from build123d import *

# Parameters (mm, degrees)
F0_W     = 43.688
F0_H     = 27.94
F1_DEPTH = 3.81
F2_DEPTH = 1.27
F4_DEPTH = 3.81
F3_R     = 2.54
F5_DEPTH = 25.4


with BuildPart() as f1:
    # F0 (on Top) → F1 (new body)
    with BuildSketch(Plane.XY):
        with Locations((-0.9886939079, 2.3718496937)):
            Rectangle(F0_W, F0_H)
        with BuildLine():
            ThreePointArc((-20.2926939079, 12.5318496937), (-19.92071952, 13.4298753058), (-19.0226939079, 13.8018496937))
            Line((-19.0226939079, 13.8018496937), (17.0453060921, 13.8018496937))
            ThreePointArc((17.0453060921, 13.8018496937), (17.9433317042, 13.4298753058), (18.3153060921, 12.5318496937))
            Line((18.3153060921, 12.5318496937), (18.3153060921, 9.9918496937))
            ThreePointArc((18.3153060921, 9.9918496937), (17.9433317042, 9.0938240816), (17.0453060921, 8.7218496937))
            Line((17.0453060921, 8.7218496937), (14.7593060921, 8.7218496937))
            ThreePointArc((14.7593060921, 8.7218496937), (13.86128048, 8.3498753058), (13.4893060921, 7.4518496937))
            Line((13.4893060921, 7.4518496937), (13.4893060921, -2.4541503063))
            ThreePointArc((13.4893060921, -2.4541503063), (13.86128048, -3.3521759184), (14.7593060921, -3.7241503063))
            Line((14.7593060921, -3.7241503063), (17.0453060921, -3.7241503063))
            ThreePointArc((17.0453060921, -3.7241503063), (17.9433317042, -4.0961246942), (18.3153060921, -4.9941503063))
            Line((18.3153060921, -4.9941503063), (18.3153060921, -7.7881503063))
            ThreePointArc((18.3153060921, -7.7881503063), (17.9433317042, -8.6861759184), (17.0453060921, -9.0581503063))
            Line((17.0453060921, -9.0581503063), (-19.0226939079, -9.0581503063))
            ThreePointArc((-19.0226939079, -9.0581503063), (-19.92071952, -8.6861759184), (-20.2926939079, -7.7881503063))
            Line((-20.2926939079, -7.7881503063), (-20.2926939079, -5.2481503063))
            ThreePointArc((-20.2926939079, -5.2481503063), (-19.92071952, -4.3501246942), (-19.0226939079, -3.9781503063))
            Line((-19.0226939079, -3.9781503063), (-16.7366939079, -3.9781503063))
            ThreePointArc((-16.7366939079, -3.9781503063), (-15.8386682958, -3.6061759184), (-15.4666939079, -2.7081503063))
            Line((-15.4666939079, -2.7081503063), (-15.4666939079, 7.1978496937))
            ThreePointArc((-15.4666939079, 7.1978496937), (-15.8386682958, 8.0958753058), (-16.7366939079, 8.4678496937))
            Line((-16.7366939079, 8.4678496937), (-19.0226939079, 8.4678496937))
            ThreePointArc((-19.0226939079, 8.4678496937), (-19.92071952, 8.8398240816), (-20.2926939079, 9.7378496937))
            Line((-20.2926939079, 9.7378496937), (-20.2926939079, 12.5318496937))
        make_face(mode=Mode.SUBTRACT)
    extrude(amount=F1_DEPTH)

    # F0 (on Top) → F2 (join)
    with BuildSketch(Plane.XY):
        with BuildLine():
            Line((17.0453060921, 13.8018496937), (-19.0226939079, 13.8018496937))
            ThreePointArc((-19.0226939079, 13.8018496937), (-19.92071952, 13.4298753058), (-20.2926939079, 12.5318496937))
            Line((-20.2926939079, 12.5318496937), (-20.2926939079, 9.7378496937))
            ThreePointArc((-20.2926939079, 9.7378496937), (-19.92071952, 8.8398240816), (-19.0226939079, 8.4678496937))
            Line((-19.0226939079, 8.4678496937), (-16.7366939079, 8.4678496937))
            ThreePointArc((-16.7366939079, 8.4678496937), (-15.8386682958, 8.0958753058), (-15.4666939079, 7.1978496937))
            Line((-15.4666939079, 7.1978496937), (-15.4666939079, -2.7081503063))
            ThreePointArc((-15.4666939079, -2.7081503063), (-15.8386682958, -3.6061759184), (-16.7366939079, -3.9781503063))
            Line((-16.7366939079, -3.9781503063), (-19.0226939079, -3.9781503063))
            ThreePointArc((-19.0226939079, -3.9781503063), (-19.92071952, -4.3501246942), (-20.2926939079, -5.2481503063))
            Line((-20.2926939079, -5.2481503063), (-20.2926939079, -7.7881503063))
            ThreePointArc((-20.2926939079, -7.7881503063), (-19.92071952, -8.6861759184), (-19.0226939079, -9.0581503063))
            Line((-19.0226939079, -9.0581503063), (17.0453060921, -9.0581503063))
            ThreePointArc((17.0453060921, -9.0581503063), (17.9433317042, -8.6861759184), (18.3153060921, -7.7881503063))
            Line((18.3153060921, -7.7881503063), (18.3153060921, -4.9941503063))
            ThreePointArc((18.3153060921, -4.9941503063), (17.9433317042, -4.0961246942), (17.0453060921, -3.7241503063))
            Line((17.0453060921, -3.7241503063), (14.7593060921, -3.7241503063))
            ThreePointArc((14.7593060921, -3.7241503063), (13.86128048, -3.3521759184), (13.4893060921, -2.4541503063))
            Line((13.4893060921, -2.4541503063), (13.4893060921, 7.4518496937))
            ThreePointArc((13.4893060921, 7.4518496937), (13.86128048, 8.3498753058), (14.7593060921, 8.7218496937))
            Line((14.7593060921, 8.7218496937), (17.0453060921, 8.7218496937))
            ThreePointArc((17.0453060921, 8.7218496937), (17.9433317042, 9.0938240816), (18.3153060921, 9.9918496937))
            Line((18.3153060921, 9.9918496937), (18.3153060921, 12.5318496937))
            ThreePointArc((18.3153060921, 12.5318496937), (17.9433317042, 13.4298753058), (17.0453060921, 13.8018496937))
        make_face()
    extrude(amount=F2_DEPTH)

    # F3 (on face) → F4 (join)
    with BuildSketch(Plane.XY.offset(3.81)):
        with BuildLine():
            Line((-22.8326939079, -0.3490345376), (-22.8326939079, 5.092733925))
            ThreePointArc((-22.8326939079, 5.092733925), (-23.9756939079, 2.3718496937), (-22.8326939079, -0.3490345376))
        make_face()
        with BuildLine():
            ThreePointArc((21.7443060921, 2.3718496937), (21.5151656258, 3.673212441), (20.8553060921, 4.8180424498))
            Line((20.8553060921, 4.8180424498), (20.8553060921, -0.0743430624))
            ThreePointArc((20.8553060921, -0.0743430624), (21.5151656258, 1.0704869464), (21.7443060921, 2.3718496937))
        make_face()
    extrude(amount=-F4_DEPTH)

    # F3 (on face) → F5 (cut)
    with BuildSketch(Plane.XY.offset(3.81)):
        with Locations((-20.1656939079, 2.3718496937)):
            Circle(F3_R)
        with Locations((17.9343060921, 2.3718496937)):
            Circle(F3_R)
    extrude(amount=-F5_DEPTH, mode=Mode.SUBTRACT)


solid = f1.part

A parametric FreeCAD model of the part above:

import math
import FreeCAD as App
import Part
import Sketcher
Q = App.Units.Quantity

doc = App.newDocument("Part")
body = doc.addObject("PartDesign::Body", "Body")

# Sketch on XY plane
sketch1 = body.newObject("Sketcher::SketchObject", "Sketch")
sketch1.AttachmentSupport = (doc.getObject("XY_Plane"), [""])
sketch1.MapMode = "FlatFace"
sketch1.addGeometry([
    Part.LineSegment(App.Vector(-22.8, 16.3, 0), App.Vector(-22.8, -11.6, 0)),  # 0
    Part.LineSegment(App.Vector(-22.8, -11.6, 0), App.Vector(20.9, -11.6, 0)),  # 1
    Part.LineSegment(App.Vector(20.9, -11.6, 0), App.Vector(20.9, 16.3, 0)),  # 2
    Part.LineSegment(App.Vector(20.9, 16.3, 0), App.Vector(-22.8, 16.3, 0)),  # 3
    Part.LineSegment(App.Vector(-20.3, 9.7, 0), App.Vector(-20.3, 12.5, 0)),  # 4
    Part.ArcOfCircle(Part.Circle(App.Vector(-19, 12.5, 0), App.Vector(0, 0, 1), 1.3), math.radians(90), math.radians(180)),  # 5
    Part.LineSegment(App.Vector(-19, 13.8, 0), App.Vector(17, 13.8, 0)),  # 6
    Part.ArcOfCircle(Part.Circle(App.Vector(17, 12.5, 0), App.Vector(0, 0, 1), 1.3), math.radians(0), math.radians(90)),  # 7
    Part.LineSegment(App.Vector(18.3, 12.5, 0), App.Vector(18.3, 10, 0)),  # 8
    Part.ArcOfCircle(Part.Circle(App.Vector(17, 10, 0), App.Vector(0, 0, 1), 1.3), math.radians(-90), math.radians(0)),  # 9
    Part.LineSegment(App.Vector(17, 8.7, 0), App.Vector(14.8, 8.7, 0)),  # 10
    Part.ArcOfCircle(Part.Circle(App.Vector(14.8, 7.5, 0), App.Vector(0, 0, 1), 1.3), math.radians(90), math.radians(180)),  # 11
    Part.LineSegment(App.Vector(13.5, 7.5, 0), App.Vector(13.5, -2.5, 0)),  # 12
    Part.ArcOfCircle(Part.Circle(App.Vector(14.8, -2.5, 0), App.Vector(0, 0, 1), 1.3), math.radians(180), math.radians(270)),  # 13
    Part.LineSegment(App.Vector(14.8, -3.7, 0), App.Vector(17, -3.7, 0)),  # 14
    Part.ArcOfCircle(Part.Circle(App.Vector(17, -5, 0), App.Vector(0, 0, 1), 1.3), math.radians(0), math.radians(90)),  # 15
    Part.LineSegment(App.Vector(18.3, -5, 0), App.Vector(18.3, -7.8, 0)),  # 16
    Part.ArcOfCircle(Part.Circle(App.Vector(17, -7.8, 0), App.Vector(0, 0, 1), 1.3), math.radians(-90), math.radians(0)),  # 17
    Part.LineSegment(App.Vector(17, -9.1, 0), App.Vector(-19, -9.1, 0)),  # 18
    Part.ArcOfCircle(Part.Circle(App.Vector(-19, -7.8, 0), App.Vector(0, 0, 1), 1.3), math.radians(180), math.radians(270)),  # 19
    Part.LineSegment(App.Vector(-20.3, -7.8, 0), App.Vector(-20.3, -5.2, 0)),  # 20
    Part.ArcOfCircle(Part.Circle(App.Vector(-19, -5.2, 0), App.Vector(0, 0, 1), 1.3), math.radians(90), math.radians(180)),  # 21
    Part.LineSegment(App.Vector(-19, -4, 0), App.Vector(-16.7, -4, 0)),  # 22
    Part.ArcOfCircle(Part.Circle(App.Vector(-16.7, -2.7, 0), App.Vector(0, 0, 1), 1.3), math.radians(-90), math.radians(0)),  # 23
    Part.LineSegment(App.Vector(-15.5, -2.7, 0), App.Vector(-15.5, 7.2, 0)),  # 24
    Part.ArcOfCircle(Part.Circle(App.Vector(-16.7, 7.2, 0), App.Vector(0, 0, 1), 1.3), math.radians(0), math.radians(90)),  # 25
    Part.LineSegment(App.Vector(-16.7, 8.5, 0), App.Vector(-19, 8.5, 0)),  # 26
    Part.ArcOfCircle(Part.Circle(App.Vector(-19, 9.7, 0), App.Vector(0, 0, 1), 1.3), math.radians(180), math.radians(270)),  # 27
], False)
sketch1.addConstraint([
    Sketcher.Constraint("Coincident", 0, 2, 1, 1),
    Sketcher.Constraint("Coincident", 1, 2, 2, 1),
    Sketcher.Constraint("Coincident", 2, 2, 3, 1),
    Sketcher.Constraint("Coincident", 3, 2, 0, 1),
    Sketcher.Constraint("Tangent", 4, 2, 5, 2),
    Sketcher.Constraint("Tangent", 5, 1, 6, 1),
    Sketcher.Constraint("Tangent", 6, 2, 7, 2),
    Sketcher.Constraint("Tangent", 7, 1, 8, 1),
    Sketcher.Constraint("Tangent", 8, 2, 9, 2),
    Sketcher.Constraint("Tangent", 9, 1, 10, 1),
    Sketcher.Constraint("Tangent", 10, 2, 11, 1),
    Sketcher.Constraint("Tangent", 11, 2, 12, 1),
    Sketcher.Constraint("Tangent", 12, 2, 13, 1),
    Sketcher.Constraint("Tangent", 13, 2, 14, 1),
    Sketcher.Constraint("Tangent", 14, 2, 15, 2),
    Sketcher.Constraint("Tangent", 15, 1, 16, 1),
    Sketcher.Constraint("Tangent", 16, 2, 17, 2),
    Sketcher.Constraint("Tangent", 17, 1, 18, 1),
    Sketcher.Constraint("Tangent", 18, 2, 19, 2),
    Sketcher.Constraint("Tangent", 19, 1, 20, 1),
    Sketcher.Constraint("Tangent", 20, 2, 21, 2),
    Sketcher.Constraint("Tangent", 21, 1, 22, 1),
    Sketcher.Constraint("Tangent", 22, 2, 23, 1),
    Sketcher.Constraint("Tangent", 23, 2, 24, 1),
    Sketcher.Constraint("Tangent", 24, 2, 25, 1),
    Sketcher.Constraint("Tangent", 25, 2, 26, 1),
    Sketcher.Constraint("Tangent", 26, 2, 27, 2),
    Sketcher.Constraint("Tangent", 27, 1, 4, 1),
    Sketcher.Constraint("Vertical", 0),
    Sketcher.Constraint("Horizontal", 1),
    Sketcher.Constraint("Vertical", 2),
    Sketcher.Constraint("Horizontal", 3),
    Sketcher.Constraint("Vertical", 4),
    Sketcher.Constraint("Horizontal", 6),
    Sketcher.Constraint("Vertical", 8),
    Sketcher.Constraint("Horizontal", 10),
    Sketcher.Constraint("Vertical", 12),
    Sketcher.Constraint("Horizontal", 14),
    Sketcher.Constraint("Vertical", 16),
    Sketcher.Constraint("Horizontal", 18),
    Sketcher.Constraint("Vertical", 20),
    Sketcher.Constraint("Horizontal", 22),
    Sketcher.Constraint("Vertical", 24),
    Sketcher.Constraint("Horizontal", 26),
    Sketcher.Constraint("Equal", 5, 7),
    Sketcher.Constraint("Equal", 7, 9),
    Sketcher.Constraint("Equal", 9, 11),
    Sketcher.Constraint("Equal", 11, 13),
    Sketcher.Constraint("Equal", 13, 15),
    Sketcher.Constraint("Equal", 15, 17),
    Sketcher.Constraint("Equal", 17, 19),
    Sketcher.Constraint("Equal", 19, 21),
    Sketcher.Constraint("Equal", 21, 23),
    Sketcher.Constraint("Equal", 23, 25),
    Sketcher.Constraint("Equal", 25, 27),
    Sketcher.Constraint("Vertical", 9, 3, 15, 3),
    Sketcher.Constraint("Vertical", 5, 3, 19, 3),
    Sketcher.Constraint("Equal", 14, 22),
    Sketcher.Constraint("Equal", 4, 16),
    Sketcher.Constraint("Equal", 8, 20),
    Sketcher.Constraint("Radius", 5, Q("0.05 in")),
    Sketcher.Constraint("DistanceY", 0, 2, 0, 1, Q("1.1 in")),
    Sketcher.Constraint("DistanceY", 8, 2, 8, 1, Q("0.1 in")),
    Sketcher.Constraint("DistanceX", 1, 1, 1, 2, Q("1.72 in")),
    Sketcher.Constraint("DistanceX", 6, 1, 6, 2, Q("1.42 in")),
    Sketcher.Constraint("DistanceX", 10, 2, 10, 1, Q("0.09 in")),
    Sketcher.Constraint("DistanceY", 4, 1, 4, 2, Q("0.11 in")),
    Sketcher.Constraint("DistanceY", 12, 2, 12, 1, Q("0.39 in")),
    Sketcher.Constraint("DistanceX", 3, 2, 4, 2, Q("0.1 in")),
    Sketcher.Constraint("DistanceY", 5, 1, 3, 2, Q("0.1 in")),
    Sketcher.Constraint("DistanceY", -1, 1, 5, 3, Q("12.53185 mm")),
    Sketcher.Constraint("DistanceX", 5, 3, -1, 1, Q("19.022694 mm")),
])
pad1 = body.newObject("PartDesign::Pad", "Pad")
pad1.Profile = sketch1
pad1.Length = Q("0.15 in")

# Sketch on XY plane
sketch2 = body.newObject("Sketcher::SketchObject", "Sketch001")
sketch2.AttachmentSupport = (doc.getObject("XY_Plane"), [""])
sketch2.MapMode = "FlatFace"
sketch2.addGeometry([
    Part.LineSegment(App.Vector(17, 13.8, 0), App.Vector(-19, 13.8, 0)),  # 0
    Part.ArcOfCircle(Part.Circle(App.Vector(-19, 12.5, 0), App.Vector(0, 0, 1), 1.3), math.radians(90), math.radians(180)),  # 1
    Part.LineSegment(App.Vector(-20.3, 12.5, 0), App.Vector(-20.3, 9.7, 0)),  # 2
    Part.ArcOfCircle(Part.Circle(App.Vector(-19, 9.7, 0), App.Vector(0, 0, 1), 1.3), math.radians(180), math.radians(270)),  # 3
    Part.LineSegment(App.Vector(-19, 8.5, 0), App.Vector(-16.7, 8.5, 0)),  # 4
    Part.ArcOfCircle(Part.Circle(App.Vector(-16.7, 7.2, 0), App.Vector(0, 0, 1), 1.3), math.radians(0), math.radians(90)),  # 5
    Part.LineSegment(App.Vector(-15.5, 7.2, 0), App.Vector(-15.5, -2.7, 0)),  # 6
    Part.ArcOfCircle(Part.Circle(App.Vector(-16.7, -2.7, 0), App.Vector(0, 0, 1), 1.3), math.radians(-90), math.radians(0)),  # 7
    Part.LineSegment(App.Vector(-16.7, -4, 0), App.Vector(-19, -4, 0)),  # 8
    Part.ArcOfCircle(Part.Circle(App.Vector(-19, -5.2, 0), App.Vector(0, 0, 1), 1.3), math.radians(90), math.radians(180)),  # 9
    Part.LineSegment(App.Vector(-20.3, -5.2, 0), App.Vector(-20.3, -7.8, 0)),  # 10
    Part.ArcOfCircle(Part.Circle(App.Vector(-19, -7.8, 0), App.Vector(0, 0, 1), 1.3), math.radians(180), math.radians(270)),  # 11
    Part.LineSegment(App.Vector(-19, -9.1, 0), App.Vector(17, -9.1, 0)),  # 12
    Part.ArcOfCircle(Part.Circle(App.Vector(17, -7.8, 0), App.Vector(0, 0, 1), 1.3), math.radians(-90), math.radians(0)),  # 13
    Part.LineSegment(App.Vector(18.3, -7.8, 0), App.Vector(18.3, -5, 0)),  # 14
    Part.ArcOfCircle(Part.Circle(App.Vector(17, -5, 0), App.Vector(0, 0, 1), 1.3), math.radians(0), math.radians(90)),  # 15
    Part.LineSegment(App.Vector(17, -3.7, 0), App.Vector(14.8, -3.7, 0)),  # 16
    Part.ArcOfCircle(Part.Circle(App.Vector(14.8, -2.5, 0), App.Vector(0, 0, 1), 1.3), math.radians(180), math.radians(270)),  # 17
    Part.LineSegment(App.Vector(13.5, -2.5, 0), App.Vector(13.5, 7.5, 0)),  # 18
    Part.ArcOfCircle(Part.Circle(App.Vector(14.8, 7.5, 0), App.Vector(0, 0, 1), 1.3), math.radians(90), math.radians(180)),  # 19
    Part.LineSegment(App.Vector(14.8, 8.7, 0), App.Vector(17, 8.7, 0)),  # 20
    Part.ArcOfCircle(Part.Circle(App.Vector(17, 10, 0), App.Vector(0, 0, 1), 1.3), math.radians(-90), math.radians(0)),  # 21
    Part.LineSegment(App.Vector(18.3, 10, 0), App.Vector(18.3, 12.5, 0)),  # 22
    Part.ArcOfCircle(Part.Circle(App.Vector(17, 12.5, 0), App.Vector(0, 0, 1), 1.3), math.radians(0), math.radians(90)),  # 23
], False)
sketch2.addConstraint([
    Sketcher.Constraint("Tangent", 0, 2, 1, 1),
    Sketcher.Constraint("Tangent", 1, 2, 2, 1),
    Sketcher.Constraint("Tangent", 2, 2, 3, 1),
    Sketcher.Constraint("Tangent", 3, 2, 4, 1),
    Sketcher.Constraint("Tangent", 4, 2, 5, 2),
    Sketcher.Constraint("Tangent", 5, 1, 6, 1),
    Sketcher.Constraint("Tangent", 6, 2, 7, 2),
    Sketcher.Constraint("Tangent", 7, 1, 8, 1),
    Sketcher.Constraint("Tangent", 8, 2, 9, 1),
    Sketcher.Constraint("Tangent", 9, 2, 10, 1),
    Sketcher.Constraint("Tangent", 10, 2, 11, 1),
    Sketcher.Constraint("Tangent", 11, 2, 12, 1),
    Sketcher.Constraint("Tangent", 12, 2, 13, 1),
    Sketcher.Constraint("Tangent", 13, 2, 14, 1),
    Sketcher.Constraint("Tangent", 14, 2, 15, 1),
    Sketcher.Constraint("Tangent", 15, 2, 16, 1),
    Sketcher.Constraint("Tangent", 16, 2, 17, 2),
    Sketcher.Constraint("Tangent", 17, 1, 18, 1),
    Sketcher.Constraint("Tangent", 18, 2, 19, 2),
    Sketcher.Constraint("Tangent", 19, 1, 20, 1),
    Sketcher.Constraint("Tangent", 20, 2, 21, 1),
    Sketcher.Constraint("Tangent", 21, 2, 22, 1),
    Sketcher.Constraint("Tangent", 22, 2, 23, 1),
    Sketcher.Constraint("Tangent", 23, 2, 0, 1),
    Sketcher.Constraint("Horizontal", 0),
    Sketcher.Constraint("Vertical", 2),
    Sketcher.Constraint("Horizontal", 4),
    Sketcher.Constraint("Vertical", 6),
    Sketcher.Constraint("Horizontal", 8),
    Sketcher.Constraint("Vertical", 10),
    Sketcher.Constraint("Horizontal", 12),
    Sketcher.Constraint("Vertical", 14),
    Sketcher.Constraint("Horizontal", 16),
    Sketcher.Constraint("Vertical", 18),
    Sketcher.Constraint("Horizontal", 20),
    Sketcher.Constraint("Vertical", 22),
    Sketcher.Constraint("Equal", 1, 3),
    Sketcher.Constraint("Equal", 3, 5),
    Sketcher.Constraint("Equal", 5, 7),
    Sketcher.Constraint("Equal", 7, 9),
    Sketcher.Constraint("Equal", 9, 11),
    Sketcher.Constraint("Equal", 11, 13),
    Sketcher.Constraint("Equal", 13, 15),
    Sketcher.Constraint("Equal", 15, 17),
    Sketcher.Constraint("Equal", 17, 19),
    Sketcher.Constraint("Equal", 19, 21),
    Sketcher.Constraint("Equal", 21, 23),
    Sketcher.Constraint("Vertical", 3, 3, 9, 3),
    Sketcher.Constraint("Vertical", 15, 3, 21, 3),
    Sketcher.Constraint("Equal", 8, 16),
    Sketcher.Constraint("Equal", 2, 14),
    Sketcher.Constraint("Equal", 6, 18),
    Sketcher.Constraint("Radius", 1, Q("0.05 in")),
    Sketcher.Constraint("DistanceY", 10, 2, 10, 1, Q("0.1 in")),
    Sketcher.Constraint("DistanceX", 0, 2, 0, 1, Q("1.42 in")),
    Sketcher.Constraint("DistanceX", 4, 1, 4, 2, Q("0.09 in")),
    Sketcher.Constraint("DistanceY", 2, 2, 2, 1, Q("0.11 in")),
    Sketcher.Constraint("DistanceY", 6, 2, 6, 1, Q("0.39 in")),
    Sketcher.Constraint("DistanceY", -1, 1, 1, 3, Q("12.53185 mm")),
    Sketcher.Constraint("DistanceX", 1, 3, -1, 1, Q("19.022694 mm")),
])
pad2 = body.newObject("PartDesign::Pad", "Pad001")
pad2.Profile = sketch2
pad2.Length = Q("0.05 in")

# Sketch on XY plane
sketch3 = body.newObject("Sketcher::SketchObject", "Sketch002")
sketch3.AttachmentSupport = (doc.getObject("XY_Plane"), [""])
sketch3.MapMode = "FlatFace"
sketch3.AttachmentOffset = App.Placement(App.Vector(0, 0, 0.15 * 25.4), App.Rotation())
sketch3.addGeometry([
    Part.LineSegment(App.Vector(-22.8, -0.3, 0), App.Vector(-22.8, 5.1, 0)),  # 0
    Part.ArcOfCircle(Part.Circle(App.Vector(-20.2, 2.4, 0), App.Vector(0, 0, 1), 3.8), math.radians(134), math.radians(226)),  # 1
    Part.ArcOfCircle(Part.Circle(App.Vector(17.9, 2.4, 0), App.Vector(0, 0, 1), 3.8), math.radians(0), math.radians(40)),  # 2
    Part.LineSegment(App.Vector(20.9, 4.8, 0), App.Vector(20.9, -0.1, 0)),  # 3
    Part.ArcOfCircle(Part.Circle(App.Vector(17.9, 2.4, 0), App.Vector(0, 0, 1), 3.8), math.radians(-40), math.radians(0)),  # 4
], False)
sketch3.addConstraint([
    Sketcher.Constraint("Coincident", 0, 1, 1, 2),
    Sketcher.Constraint("Coincident", 1, 1, 0, 2),
    Sketcher.Constraint("Coincident", 2, 2, 3, 1),
    Sketcher.Constraint("Coincident", 3, 2, 4, 1),
    Sketcher.Constraint("Tangent", 4, 2, 2, 1),
    Sketcher.Constraint("Vertical", 0),
    Sketcher.Constraint("Vertical", 3),
    Sketcher.Constraint("Equal", 1, 2),
    Sketcher.Constraint("Equal", 2, 4),
    Sketcher.Constraint("Horizontal", 1, 3, 2, 3),
    Sketcher.Constraint("Horizontal", 2, 3, 4, 2),
    Sketcher.Constraint("Radius", 1, Q("0.15 in")),
    Sketcher.Constraint("DistanceX", 1, 3, 2, 3, Q("1.5 in")),
    Sketcher.Constraint("DistanceX", 1, 1, 2, 2, Q("1.72 in")),
    Sketcher.Constraint("DistanceX", 0, 1, 1, 3, Q("0.105 in")),
    Sketcher.Constraint("DistanceY", -1, 1, 1, 3, Q("2.37185 mm")),
    Sketcher.Constraint("DistanceX", 1, 3, -1, 1, Q("20.165694 mm")),
])
pad3 = body.newObject("PartDesign::Pad", "Pad002")
pad3.Profile = sketch3
pad3.Length = Q("0.15 in")
pad3.Reversed = True

# Sketch on XY plane
sketch4 = body.newObject("Sketcher::SketchObject", "Sketch003")
sketch4.AttachmentSupport = (doc.getObject("XY_Plane"), [""])
sketch4.MapMode = "FlatFace"
sketch4.AttachmentOffset = App.Placement(App.Vector(0, 0, 0.15 * 25.4), App.Rotation())
sketch4.addGeometry([
    Part.Circle(App.Vector(-20.2, 2.4, 0), App.Vector(0, 0, 1), 2.5),
    Part.Circle(App.Vector(17.9, 2.4, 0), App.Vector(0, 0, 1), 2.5),
], False)
sketch4.addConstraint([
    Sketcher.Constraint("Equal", 0, 1),
    Sketcher.Constraint("Horizontal", 0, 3, 1, 3),
    Sketcher.Constraint("Diameter", 0, Q("0.2 in")),
    Sketcher.Constraint("DistanceX", 0, 3, 1, 3, Q("1.5 in")),
    Sketcher.Constraint("DistanceY", -1, 1, 0, 3, Q("2.37185 mm")),
    Sketcher.Constraint("DistanceX", 0, 3, -1, 1, Q("20.165694 mm")),
])
pocket1 = body.newObject("PartDesign::Pocket", "Pocket")
pocket1.Profile = sketch4
pocket1.Length = Q("1 in")

doc.recompute()
